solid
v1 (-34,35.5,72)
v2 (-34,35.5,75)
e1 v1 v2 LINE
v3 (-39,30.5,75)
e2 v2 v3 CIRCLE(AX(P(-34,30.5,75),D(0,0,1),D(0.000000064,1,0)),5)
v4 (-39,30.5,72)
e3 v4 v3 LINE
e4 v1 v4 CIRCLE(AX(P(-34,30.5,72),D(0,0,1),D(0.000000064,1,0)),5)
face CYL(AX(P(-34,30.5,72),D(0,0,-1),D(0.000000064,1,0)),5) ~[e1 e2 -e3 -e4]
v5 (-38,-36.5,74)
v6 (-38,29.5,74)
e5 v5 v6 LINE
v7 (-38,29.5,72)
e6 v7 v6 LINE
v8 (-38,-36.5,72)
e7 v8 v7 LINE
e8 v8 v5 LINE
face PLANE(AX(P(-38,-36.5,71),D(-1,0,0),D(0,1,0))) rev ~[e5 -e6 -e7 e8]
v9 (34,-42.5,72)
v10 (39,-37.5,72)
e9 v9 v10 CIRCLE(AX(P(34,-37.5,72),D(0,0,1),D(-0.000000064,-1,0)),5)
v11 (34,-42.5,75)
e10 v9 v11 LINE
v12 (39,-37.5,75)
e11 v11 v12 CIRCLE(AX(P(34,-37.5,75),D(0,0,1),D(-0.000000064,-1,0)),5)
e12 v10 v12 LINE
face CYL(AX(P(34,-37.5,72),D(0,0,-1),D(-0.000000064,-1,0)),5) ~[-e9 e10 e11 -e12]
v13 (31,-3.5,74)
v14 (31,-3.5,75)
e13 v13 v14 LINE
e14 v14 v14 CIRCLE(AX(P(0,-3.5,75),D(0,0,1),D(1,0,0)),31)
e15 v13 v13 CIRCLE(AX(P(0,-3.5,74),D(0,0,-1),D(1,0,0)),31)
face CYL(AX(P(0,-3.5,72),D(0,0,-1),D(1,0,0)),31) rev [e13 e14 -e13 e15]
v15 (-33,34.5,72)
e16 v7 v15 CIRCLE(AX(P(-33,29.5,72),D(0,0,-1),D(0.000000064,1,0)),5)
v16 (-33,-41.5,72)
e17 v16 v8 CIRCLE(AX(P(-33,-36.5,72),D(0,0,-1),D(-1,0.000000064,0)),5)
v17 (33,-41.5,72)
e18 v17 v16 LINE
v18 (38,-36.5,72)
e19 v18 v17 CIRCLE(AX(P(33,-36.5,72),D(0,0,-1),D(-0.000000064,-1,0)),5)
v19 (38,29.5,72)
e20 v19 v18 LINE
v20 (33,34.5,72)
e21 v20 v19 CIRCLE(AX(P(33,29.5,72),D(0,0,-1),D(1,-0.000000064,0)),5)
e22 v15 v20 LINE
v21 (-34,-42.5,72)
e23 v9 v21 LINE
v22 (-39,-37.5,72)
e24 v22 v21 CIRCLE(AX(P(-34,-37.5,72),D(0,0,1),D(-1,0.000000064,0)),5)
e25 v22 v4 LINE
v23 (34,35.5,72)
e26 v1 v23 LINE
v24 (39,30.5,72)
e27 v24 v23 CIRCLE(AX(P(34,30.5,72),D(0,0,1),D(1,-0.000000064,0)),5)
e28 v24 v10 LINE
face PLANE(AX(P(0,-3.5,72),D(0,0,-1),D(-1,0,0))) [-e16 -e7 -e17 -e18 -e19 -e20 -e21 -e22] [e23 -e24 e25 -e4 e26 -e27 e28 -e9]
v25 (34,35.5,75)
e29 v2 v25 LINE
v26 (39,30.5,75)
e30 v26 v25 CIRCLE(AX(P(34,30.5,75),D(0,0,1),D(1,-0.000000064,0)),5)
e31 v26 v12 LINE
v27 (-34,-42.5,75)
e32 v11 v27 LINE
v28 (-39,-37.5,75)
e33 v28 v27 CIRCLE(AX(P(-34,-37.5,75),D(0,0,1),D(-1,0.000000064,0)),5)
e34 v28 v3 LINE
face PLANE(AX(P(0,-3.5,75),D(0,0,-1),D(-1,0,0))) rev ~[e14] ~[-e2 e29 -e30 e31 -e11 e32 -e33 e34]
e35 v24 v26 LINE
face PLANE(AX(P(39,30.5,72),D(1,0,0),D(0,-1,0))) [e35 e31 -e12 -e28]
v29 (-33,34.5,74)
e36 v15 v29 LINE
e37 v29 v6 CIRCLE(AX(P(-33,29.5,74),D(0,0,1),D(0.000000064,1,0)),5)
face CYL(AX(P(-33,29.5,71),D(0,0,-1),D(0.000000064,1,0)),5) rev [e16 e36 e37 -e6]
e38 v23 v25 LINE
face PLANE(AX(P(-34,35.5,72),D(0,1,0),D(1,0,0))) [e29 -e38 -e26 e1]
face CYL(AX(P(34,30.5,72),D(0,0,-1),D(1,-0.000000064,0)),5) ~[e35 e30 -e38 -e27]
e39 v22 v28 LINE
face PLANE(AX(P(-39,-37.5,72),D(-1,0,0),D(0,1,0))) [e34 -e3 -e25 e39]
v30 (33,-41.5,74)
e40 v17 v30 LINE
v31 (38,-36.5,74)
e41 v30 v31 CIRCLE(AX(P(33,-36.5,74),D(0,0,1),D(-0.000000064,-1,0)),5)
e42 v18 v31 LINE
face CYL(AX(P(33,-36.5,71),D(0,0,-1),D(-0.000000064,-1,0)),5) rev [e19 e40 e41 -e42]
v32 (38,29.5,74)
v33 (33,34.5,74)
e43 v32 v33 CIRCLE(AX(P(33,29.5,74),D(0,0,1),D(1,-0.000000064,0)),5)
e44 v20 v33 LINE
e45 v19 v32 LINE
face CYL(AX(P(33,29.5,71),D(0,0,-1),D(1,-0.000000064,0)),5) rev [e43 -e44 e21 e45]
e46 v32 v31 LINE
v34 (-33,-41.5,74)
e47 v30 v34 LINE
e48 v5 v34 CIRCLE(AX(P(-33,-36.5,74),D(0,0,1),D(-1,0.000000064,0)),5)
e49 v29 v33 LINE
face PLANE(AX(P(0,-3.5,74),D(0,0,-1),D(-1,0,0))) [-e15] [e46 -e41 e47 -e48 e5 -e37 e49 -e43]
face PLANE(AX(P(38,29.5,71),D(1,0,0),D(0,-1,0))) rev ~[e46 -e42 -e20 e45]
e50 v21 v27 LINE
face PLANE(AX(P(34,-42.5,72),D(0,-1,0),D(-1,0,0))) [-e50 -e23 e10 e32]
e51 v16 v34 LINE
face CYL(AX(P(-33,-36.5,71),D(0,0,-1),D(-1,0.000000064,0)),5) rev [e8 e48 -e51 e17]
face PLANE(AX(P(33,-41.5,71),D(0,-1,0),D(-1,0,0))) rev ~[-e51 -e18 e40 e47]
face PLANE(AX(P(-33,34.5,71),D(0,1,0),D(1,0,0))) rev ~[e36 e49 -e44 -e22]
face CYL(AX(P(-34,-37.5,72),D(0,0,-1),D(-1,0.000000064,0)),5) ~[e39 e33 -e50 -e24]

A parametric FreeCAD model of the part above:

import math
import FreeCAD as App
import Part
import Sketcher
from FreeCAD import Vector

doc = App.newDocument("Part")
body = doc.addObject("PartDesign::Body", "Body")

sketch1 = body.newObject("Sketcher::SketchObject", "Sketch")
sketch1.AttachmentSupport = (doc.getObject("XY_Plane"), [""])
sketch1.MapMode = "FlatFace"
sketch1.AttachmentOffset = App.Placement(Vector(0, 0, 80), App.Rotation())
sketch1.addGeometry([
    Part.LineSegment(Vector(33, 38, 0), Vector(-33, 38, 0)),
    Part.ArcOfCircle(Part.Circle(Vector(-33, 33, 0), Vector(0, 0, 1), 5), math.radians(89.999996), math.radians(180.000004)),
    Part.LineSegment(Vector(-38, 33, 0), Vector(-38, -33, 0)),
    Part.ArcOfCircle(Part.Circle(Vector(-33, -33, 0), Vector(0, 0, 1), 5), math.radians(179.999996), math.radians(270.000004)),
    Part.LineSegment(Vector(-33, -38, 0), Vector(33, -38, 0)),
    Part.ArcOfCircle(Part.Circle(Vector(33, -33, 0), Vector(0, 0, 1), 5), math.radians(-90.000004), math.radians(0.000004)),
    Part.LineSegment(Vector(38, -33, 0), Vector(38, 33, 0)),
    Part.ArcOfCircle(Part.Circle(Vector(33, 33, 0), Vector(0, 0, 1), 5), math.radians(-0.000004), math.radians(90.000004)),
], False)
sketch1.addConstraint([
    Sketcher.Constraint("Tangent", 0, 2, 1, 1),
    Sketcher.Constraint("Tangent", 1, 2, 2, 1),
    Sketcher.Constraint("Tangent", 2, 2, 3, 1),
    Sketcher.Constraint("Tangent", 3, 2, 4, 1),
    Sketcher.Constraint("Tangent", 4, 2, 5, 1),
    Sketcher.Constraint("Tangent", 5, 2, 6, 1),
    Sketcher.Constraint("Tangent", 6, 2, 7, 1),
    Sketcher.Constraint("Tangent", 7, 2, 0, 1),
    Sketcher.Constraint("Horizontal", 0),
    Sketcher.Constraint("Vertical", 2),
    Sketcher.Constraint("Horizontal", 4),
    Sketcher.Constraint("Vertical", 6),
    Sketcher.Constraint("Equal", 1, 3),
    Sketcher.Constraint("Equal", 3, 5),
    Sketcher.Constraint("Equal", 5, 7),
    Sketcher.Constraint("Symmetric", 1, 3, 5, 3, -1, 1),
    Sketcher.Constraint("Equal", 4, 2),
    Sketcher.Constraint("Radius", 1, 5.0),
    Sketcher.Constraint("DistanceX", 0, 2, 0, 1, 66.0),
])
pad1 = body.newObject("PartDesign::Pad", "Pad")
pad1.Profile = sketch1
pad1.Length = 3
body2 = doc.addObject("PartDesign::Body", "Body001")
doc.recompute()

body.Placement = App.Placement(Vector(0, -3.5, 30), App.Rotation(Vector(0, 0, 1), 0))
boolean = body2.newObject("PartDesign::Boolean", "Boolean")
boolean.Type = "Fuse"
boolean.addObjects([body])
body3 = doc.addObject("PartDesign::Body", "Body002")

sketch2 = body3.newObject("Sketcher::SketchObject", "Sketch001")
sketch2.AttachmentSupport = (doc.getObject("XY_Plane002"), [""])
sketch2.MapMode = "FlatFace"
sketch2.AttachmentOffset = App.Placement(Vector(0, 0, 80), App.Rotation())
sketch2.addGeometry([
    Part.LineSegment(Vector(34, 39, 0), Vector(-34, 39, 0)),
    Part.ArcOfCircle(Part.Circle(Vector(-34, 34, 0), Vector(0, 0, 1), 5), math.radians(89.999996), math.radians(180.000004)),
    Part.LineSegment(Vector(-39, 34, 0), Vector(-39, -34, 0)),
    Part.ArcOfCircle(Part.Circle(Vector(-34, -34, 0), Vector(0, 0, 1), 5), math.radians(179.999996), math.radians(270.000004)),
    Part.LineSegment(Vector(-34, -39, 0), Vector(34, -39, 0)),
    Part.ArcOfCircle(Part.Circle(Vector(34, -34, 0), Vector(0, 0, 1), 5), math.radians(-90.000004), math.radians(0.000004)),
    Part.LineSegment(Vector(39, -34, 0), Vector(39, 34, 0)),
    Part.ArcOfCircle(Part.Circle(Vector(34, 34, 0), Vector(0, 0, 1), 5), math.radians(-0.000004), math.radians(90.000004)),
    Part.Circle(Vector(0, 0, 0), Vector(0, 0, 1), 31),
], False)
sketch2.addConstraint([
    Sketcher.Constraint("Tangent", 0, 2, 1, 1),
    Sketcher.Constraint("Tangent", 1, 2, 2, 1),
    Sketcher.Constraint("Tangent", 2, 2, 3, 1),
    Sketcher.Constraint("Tangent", 3, 2, 4, 1),
    Sketcher.Constraint("Tangent", 4, 2, 5, 1),
    Sketcher.Constraint("Tangent", 5, 2, 6, 1),
    Sketcher.Constraint("Tangent", 6, 2, 7, 1),
    Sketcher.Constraint("Tangent", 7, 2, 0, 1),
    Sketcher.Constraint("Horizontal", 0),
    Sketcher.Constraint("Vertical", 2),
    Sketcher.Constraint("Horizontal", 4),
    Sketcher.Constraint("Vertical", 6),
    Sketcher.Constraint("Coincident", 8, 3, -1, 1),
    Sketcher.Constraint("Equal", 1, 3),
    Sketcher.Constraint("Equal", 3, 5),
    Sketcher.Constraint("Equal", 5, 7),
    Sketcher.Constraint("Symmetric", 1, 3, 5, 3, -1, 1),
    Sketcher.Constraint("Equal", 4, 2),
    Sketcher.Constraint("Diameter", 8, 62.0),
    Sketcher.Constraint("Radius", 1, 5.0),
    Sketcher.Constraint("DistanceX", 0, 2, 0, 1, 68.0),
])
pad2 = body3.newObject("PartDesign::Pad", "Pad001")
pad2.Profile = sketch2
pad2.Length = 3
body4 = doc.addObject("PartDesign::Body", "Body003")
doc.recompute()

body3.Placement = App.Placement(Vector(0, -3.5, 31), App.Rotation(Vector(0, 0, 1), 0))
boolean2 = body4.newObject("PartDesign::Boolean", "Boolean001")
boolean2.Type = "Fuse"
boolean2.addObjects([body3])
doc.recompute()

boolean3 = body4.newObject("PartDesign::Boolean", "Boolean002")
boolean3.Type = "Cut"
boolean3.addObjects([body2])
body5 = doc.addObject("PartDesign::Body", "Body004")
doc.recompute()

body4.Placement = App.Placement(Vector(0, 0, -39), App.Rotation(Vector(0, 0, 1), 0))
boolean4 = body5.newObject("PartDesign::Boolean", "Boolean003")
boolean4.Type = "Fuse"
boolean4.addObjects([body4])

doc.recompute()
